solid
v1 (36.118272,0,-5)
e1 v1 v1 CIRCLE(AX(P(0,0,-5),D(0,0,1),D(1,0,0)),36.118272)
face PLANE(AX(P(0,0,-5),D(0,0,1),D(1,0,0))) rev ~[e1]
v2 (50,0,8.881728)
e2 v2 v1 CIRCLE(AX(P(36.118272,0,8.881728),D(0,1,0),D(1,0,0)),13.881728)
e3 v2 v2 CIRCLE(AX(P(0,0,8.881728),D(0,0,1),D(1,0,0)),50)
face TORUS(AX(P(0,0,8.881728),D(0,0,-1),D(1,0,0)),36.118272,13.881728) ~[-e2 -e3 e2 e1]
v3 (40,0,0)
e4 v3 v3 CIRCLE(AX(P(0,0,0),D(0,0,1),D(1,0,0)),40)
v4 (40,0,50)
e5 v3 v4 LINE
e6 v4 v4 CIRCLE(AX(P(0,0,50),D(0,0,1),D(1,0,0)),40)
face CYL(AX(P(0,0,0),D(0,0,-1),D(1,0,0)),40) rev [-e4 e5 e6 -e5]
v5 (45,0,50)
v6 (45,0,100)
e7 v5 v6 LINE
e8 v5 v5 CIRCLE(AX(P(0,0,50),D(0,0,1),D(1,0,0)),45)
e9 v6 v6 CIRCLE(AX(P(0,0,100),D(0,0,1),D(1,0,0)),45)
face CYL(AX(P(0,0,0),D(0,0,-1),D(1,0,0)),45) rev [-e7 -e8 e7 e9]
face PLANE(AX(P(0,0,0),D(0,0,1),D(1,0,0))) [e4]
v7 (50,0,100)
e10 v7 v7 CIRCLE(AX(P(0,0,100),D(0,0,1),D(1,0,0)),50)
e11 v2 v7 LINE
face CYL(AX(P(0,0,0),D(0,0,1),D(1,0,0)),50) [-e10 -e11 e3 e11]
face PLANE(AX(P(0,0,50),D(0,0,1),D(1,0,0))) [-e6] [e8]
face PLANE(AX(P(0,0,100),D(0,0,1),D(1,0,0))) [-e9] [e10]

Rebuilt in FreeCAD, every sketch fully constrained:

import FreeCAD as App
import Part
import Sketcher

V = App.Vector
Q = App.Units.Quantity


def edges_at(feature, points):
    """Names of the edges that pass closest to the given points."""
    edges = feature.Shape.Edges
    near = lambda p: min(range(len(edges)), key=lambda i: edges[i].distToShape(Part.Vertex(*p))[0])
    return sorted({f"Edge{near(p) + 1}" for p in points})

doc = App.newDocument("Part")
params = doc.addObject("Spreadsheet::Sheet", "Params")
for row, (alias, value) in enumerate([
    ("sketch1_diameter", "100 mm"),
    ("sketch1_diameter2", "90 mm"),
    ("pad1_length", "100 mm"),
    ("sketch2_diameter", "100 mm"),
    ("pad2_length", "5 mm"),
    ("fillet_radius", "13.881728 mm"),
    ("sketch3_diameter", "90 mm"),
    ("sketch3_diameter2", "80 mm"),
    ("pad3_length", "50 mm"),
], start=1):
    params.set(f"A{row}", alias)
    params.set(f"B{row}", "=" + value)
    params.setAlias(f"B{row}", alias)

body = doc.addObject("PartDesign::Body", "Body")

sketch1 = doc.addObject("Sketcher::SketchObject", "Sketch")
body.addObject(sketch1)
sketch1.AttachmentSupport = (doc.XY_Plane, [""])
sketch1.MapMode = "FlatFace"
sketch1.addGeometry([
    Part.Circle(V(0, 0, 0), V(0, 0, 1), 50),
    Part.Circle(V(0, 0, 0), V(0, 0, 1), 45),
], False)
sketch1.addConstraint([
    Sketcher.Constraint("Coincident", 0, 3, -1, 1),
    Sketcher.Constraint("Coincident", 1, 3, -1, 1),
    Sketcher.Constraint("Diameter", 0, Q("100 mm")),
    Sketcher.Constraint("Diameter", 1, Q("90 mm")),
])
sketch1.setExpression("Constraints[2]", "Params.sketch1_diameter")
sketch1.setExpression("Constraints[3]", "Params.sketch1_diameter2")
pad1 = doc.addObject("PartDesign::Pad", "Pad")
body.addObject(pad1)
pad1.Profile = sketch1
pad1.setExpression("Length", "Params.pad1_length")

sketch2 = doc.addObject("Sketcher::SketchObject", "Sketch001")
body.addObject(sketch2)
sketch2.AttachmentSupport = (doc.XY_Plane, [""])
sketch2.MapMode = "FlatFace"
sketch2.addGeometry(Part.Circle(V(0, 0, 0), V(0, 0, 1), 50), False)
sketch2.addConstraint([
    Sketcher.Constraint("Coincident", 0, 3, -1, 1),
    Sketcher.Constraint("Diameter", 0, Q("100 mm")),
])
sketch2.setExpression("Constraints[1]", "Params.sketch2_diameter")
pad2 = doc.addObject("PartDesign::Pad", "Pad001")
body.addObject(pad2)
pad2.Profile = sketch2
pad2.setExpression("Length", "Params.pad2_length")
pad2.Reversed = True
doc.recompute()

fillet = doc.addObject("PartDesign::Fillet", "Fillet")
body.addObject(fillet)
fillet.Base = (pad2, edges_at(pad2, [(-50, 0, -5)]))
fillet.setExpression("Radius", "Params.fillet_radius")

sketch3 = doc.addObject("Sketcher::SketchObject", "Sketch002")
body.addObject(sketch3)
sketch3.AttachmentSupport = (doc.XY_Plane, [""])
sketch3.MapMode = "FlatFace"
sketch3.addGeometry([
    Part.Circle(V(0, 0, 0), V(0, 0, 1), 45),
    Part.Circle(V(0, 0, 0), V(0, 0, 1), 40),
], False)
sketch3.addConstraint([
    Sketcher.Constraint("Coincident", 0, 3, -1, 1),
    Sketcher.Constraint("Coincident", 1, 3, -1, 1),
    Sketcher.Constraint("Diameter", 0, Q("90 mm")),
    Sketcher.Constraint("Diameter", 1, Q("80 mm")),
])
sketch3.setExpression("Constraints[2]", "Params.sketch3_diameter")
sketch3.setExpression("Constraints[3]", "Params.sketch3_diameter2")
pad3 = doc.addObject("PartDesign::Pad", "Pad002")
body.addObject(pad3)
pad3.Profile = sketch3
pad3.setExpression("Length", "Params.pad3_length")

doc.recompute()
